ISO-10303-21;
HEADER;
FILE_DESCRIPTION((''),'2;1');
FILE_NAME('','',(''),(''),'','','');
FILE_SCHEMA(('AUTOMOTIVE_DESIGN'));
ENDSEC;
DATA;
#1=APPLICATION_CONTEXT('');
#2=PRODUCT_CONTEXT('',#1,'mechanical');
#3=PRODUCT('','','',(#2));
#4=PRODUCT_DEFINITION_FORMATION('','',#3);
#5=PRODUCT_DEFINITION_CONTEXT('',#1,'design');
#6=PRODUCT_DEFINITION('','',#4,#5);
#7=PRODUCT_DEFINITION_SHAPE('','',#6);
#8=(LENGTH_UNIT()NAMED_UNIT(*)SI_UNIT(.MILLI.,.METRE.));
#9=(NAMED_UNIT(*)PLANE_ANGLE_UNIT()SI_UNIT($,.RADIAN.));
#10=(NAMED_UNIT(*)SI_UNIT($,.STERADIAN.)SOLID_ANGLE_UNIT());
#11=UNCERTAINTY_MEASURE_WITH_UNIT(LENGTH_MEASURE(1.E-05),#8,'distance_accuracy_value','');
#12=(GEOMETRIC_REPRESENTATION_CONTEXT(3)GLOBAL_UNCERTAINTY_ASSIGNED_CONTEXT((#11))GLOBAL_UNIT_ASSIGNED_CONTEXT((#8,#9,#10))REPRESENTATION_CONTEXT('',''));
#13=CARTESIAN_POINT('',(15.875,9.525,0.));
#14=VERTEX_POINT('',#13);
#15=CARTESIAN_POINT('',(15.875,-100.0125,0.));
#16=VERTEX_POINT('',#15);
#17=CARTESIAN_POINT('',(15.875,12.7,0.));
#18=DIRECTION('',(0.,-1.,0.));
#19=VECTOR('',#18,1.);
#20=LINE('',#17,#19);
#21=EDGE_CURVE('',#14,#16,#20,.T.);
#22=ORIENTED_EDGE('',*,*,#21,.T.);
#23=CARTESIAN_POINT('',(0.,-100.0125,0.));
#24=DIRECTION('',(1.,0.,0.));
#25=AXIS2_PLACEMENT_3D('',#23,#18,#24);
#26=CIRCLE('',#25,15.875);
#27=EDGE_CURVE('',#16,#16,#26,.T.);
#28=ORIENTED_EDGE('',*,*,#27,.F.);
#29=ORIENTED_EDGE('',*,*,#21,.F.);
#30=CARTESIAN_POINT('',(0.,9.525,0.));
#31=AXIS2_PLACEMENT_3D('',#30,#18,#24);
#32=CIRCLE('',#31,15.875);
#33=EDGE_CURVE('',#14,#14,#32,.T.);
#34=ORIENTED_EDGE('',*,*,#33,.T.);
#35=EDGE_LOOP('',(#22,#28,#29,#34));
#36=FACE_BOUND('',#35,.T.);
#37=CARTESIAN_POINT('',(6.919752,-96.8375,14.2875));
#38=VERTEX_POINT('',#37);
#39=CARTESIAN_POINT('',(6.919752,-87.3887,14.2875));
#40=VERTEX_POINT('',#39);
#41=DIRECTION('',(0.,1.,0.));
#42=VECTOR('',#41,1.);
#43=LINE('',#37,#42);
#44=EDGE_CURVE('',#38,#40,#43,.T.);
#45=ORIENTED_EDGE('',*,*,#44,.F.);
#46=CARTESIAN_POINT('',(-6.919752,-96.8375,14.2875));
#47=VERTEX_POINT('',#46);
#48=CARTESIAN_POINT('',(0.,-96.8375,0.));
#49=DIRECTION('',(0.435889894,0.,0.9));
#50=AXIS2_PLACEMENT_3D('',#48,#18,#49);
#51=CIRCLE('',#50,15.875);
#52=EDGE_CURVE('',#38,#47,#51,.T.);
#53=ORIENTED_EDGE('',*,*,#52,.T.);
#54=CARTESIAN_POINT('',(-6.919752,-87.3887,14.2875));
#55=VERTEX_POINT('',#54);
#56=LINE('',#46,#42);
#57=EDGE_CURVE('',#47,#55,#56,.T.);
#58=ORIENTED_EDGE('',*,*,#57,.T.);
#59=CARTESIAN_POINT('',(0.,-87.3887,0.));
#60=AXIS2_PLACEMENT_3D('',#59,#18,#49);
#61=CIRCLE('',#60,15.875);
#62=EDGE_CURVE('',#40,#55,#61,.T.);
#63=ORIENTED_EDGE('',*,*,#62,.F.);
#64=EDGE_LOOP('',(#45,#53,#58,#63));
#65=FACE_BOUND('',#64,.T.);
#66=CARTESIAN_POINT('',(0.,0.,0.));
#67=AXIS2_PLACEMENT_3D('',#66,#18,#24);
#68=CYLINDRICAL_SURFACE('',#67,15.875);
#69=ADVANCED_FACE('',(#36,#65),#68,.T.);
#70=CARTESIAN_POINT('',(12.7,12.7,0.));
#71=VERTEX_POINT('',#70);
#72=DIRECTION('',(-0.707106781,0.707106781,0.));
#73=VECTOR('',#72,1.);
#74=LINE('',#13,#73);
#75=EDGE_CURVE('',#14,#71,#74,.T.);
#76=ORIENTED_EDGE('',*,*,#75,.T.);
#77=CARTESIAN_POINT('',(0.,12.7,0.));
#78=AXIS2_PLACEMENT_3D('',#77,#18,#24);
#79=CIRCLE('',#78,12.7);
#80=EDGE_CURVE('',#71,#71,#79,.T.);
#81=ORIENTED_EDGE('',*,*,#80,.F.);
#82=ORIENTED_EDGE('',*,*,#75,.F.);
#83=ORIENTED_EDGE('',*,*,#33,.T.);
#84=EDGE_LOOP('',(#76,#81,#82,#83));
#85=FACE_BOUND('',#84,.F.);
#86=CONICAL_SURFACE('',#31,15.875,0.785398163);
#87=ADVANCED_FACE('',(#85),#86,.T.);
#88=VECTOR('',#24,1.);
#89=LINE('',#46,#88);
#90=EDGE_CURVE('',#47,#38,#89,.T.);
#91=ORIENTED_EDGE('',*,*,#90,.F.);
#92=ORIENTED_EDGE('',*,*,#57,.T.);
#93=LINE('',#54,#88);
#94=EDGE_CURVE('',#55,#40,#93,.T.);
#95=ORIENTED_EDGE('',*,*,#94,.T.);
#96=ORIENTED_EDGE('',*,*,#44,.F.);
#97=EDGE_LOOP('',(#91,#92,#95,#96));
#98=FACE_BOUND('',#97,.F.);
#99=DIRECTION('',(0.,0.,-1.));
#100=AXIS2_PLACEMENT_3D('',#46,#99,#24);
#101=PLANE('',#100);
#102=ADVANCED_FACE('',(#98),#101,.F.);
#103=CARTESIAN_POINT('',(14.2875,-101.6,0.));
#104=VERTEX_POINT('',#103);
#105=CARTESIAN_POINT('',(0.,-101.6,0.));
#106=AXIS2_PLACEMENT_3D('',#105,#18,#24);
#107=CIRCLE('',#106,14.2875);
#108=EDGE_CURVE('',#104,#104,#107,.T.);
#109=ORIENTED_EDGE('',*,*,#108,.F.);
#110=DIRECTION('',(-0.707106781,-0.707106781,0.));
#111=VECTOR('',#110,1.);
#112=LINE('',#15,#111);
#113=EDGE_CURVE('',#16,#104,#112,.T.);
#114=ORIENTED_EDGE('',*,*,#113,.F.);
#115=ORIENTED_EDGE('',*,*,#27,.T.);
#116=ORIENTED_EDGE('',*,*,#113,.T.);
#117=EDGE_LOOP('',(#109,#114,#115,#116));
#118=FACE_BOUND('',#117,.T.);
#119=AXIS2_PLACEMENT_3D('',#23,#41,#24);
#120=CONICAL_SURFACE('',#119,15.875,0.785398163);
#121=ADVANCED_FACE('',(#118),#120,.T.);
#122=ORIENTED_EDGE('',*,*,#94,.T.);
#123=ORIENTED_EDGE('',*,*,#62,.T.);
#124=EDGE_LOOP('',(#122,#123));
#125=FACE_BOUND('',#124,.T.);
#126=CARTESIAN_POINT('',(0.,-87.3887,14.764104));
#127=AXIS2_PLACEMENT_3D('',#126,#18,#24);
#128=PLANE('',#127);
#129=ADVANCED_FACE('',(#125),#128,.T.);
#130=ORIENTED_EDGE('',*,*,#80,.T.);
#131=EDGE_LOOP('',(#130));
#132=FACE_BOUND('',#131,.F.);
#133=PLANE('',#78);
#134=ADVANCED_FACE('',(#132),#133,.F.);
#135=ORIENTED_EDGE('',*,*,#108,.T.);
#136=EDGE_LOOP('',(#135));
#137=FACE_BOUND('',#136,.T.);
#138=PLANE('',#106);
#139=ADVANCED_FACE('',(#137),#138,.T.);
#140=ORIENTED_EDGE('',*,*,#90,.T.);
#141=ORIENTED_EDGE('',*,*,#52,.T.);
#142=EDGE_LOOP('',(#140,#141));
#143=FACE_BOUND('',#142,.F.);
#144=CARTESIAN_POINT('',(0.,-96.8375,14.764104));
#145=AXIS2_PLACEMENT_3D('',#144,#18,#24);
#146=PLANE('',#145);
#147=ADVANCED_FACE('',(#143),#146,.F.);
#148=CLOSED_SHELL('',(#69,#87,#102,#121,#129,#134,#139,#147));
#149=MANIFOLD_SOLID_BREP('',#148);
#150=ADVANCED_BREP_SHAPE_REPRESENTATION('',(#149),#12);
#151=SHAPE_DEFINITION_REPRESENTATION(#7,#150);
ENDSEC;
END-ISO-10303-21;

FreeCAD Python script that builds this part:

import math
import FreeCAD as App
import Part
import Sketcher

V = App.Vector
Q = App.Units.Quantity


def edges_at(feature, points):
    """Names of the edges that pass closest to the given points."""
    edges = feature.Shape.Edges
    near = lambda p: min(range(len(edges)), key=lambda i: edges[i].distToShape(Part.Vertex(*p))[0])
    return sorted({f"Edge{near(p) + 1}" for p in points})

doc = App.newDocument("Part")
params = doc.addObject("Spreadsheet::Sheet", "Params")
for row, (alias, value) in enumerate([
    ("sketch1_diameter", "1.25 in"),
    ("pad1_length", "4 in"),
    ("pad1_length2", "0.5 in"),
    ("chamfer_size", "0.0625 in"),
    ("chamfer2_size", "0.125 in"),
    ("sketch2_radius", "0.625 in"),
    ("pocket1_length", "0.372 in"),
], start=1):
    params.set(f"A{row}", alias)
    params.set(f"B{row}", "=" + value)
    params.setAlias(f"B{row}", alias)

body = doc.addObject("PartDesign::Body", "Body")

sketch1 = body.newObject("Sketcher::SketchObject", "Sketch")
sketch1.AttachmentSupport = (doc.getObject("XZ_Plane"), [""])
sketch1.MapMode = "FlatFace"
sketch1.addGeometry(Part.Circle(V(0, 0, 0), V(0, 0, 1), 15.875), False)
sketch1.addConstraint([
    Sketcher.Constraint("Coincident", 0, 3, -1, 1),
    Sketcher.Constraint("Diameter", 0, Q("1.25 in")),
])
sketch1.setExpression("Constraints[1]", "Params.sketch1_diameter")
pad1 = body.newObject("PartDesign::Pad", "Pad")
pad1.Profile = sketch1
pad1.Type = "TwoLengths"
pad1.setExpression("Length", "Params.pad1_length")
pad1.setExpression("Length2", "Params.pad1_length2")
doc.recompute()

chamfer = body.newObject("PartDesign::Chamfer", "Chamfer")
chamfer.Base = (pad1, edges_at(pad1, [(-15.875, -101.6, 0)]))
chamfer.setExpression("Size", "Params.chamfer_size")
doc.recompute()

chamfer2 = body.newObject("PartDesign::Chamfer", "Chamfer001")
chamfer2.Base = (chamfer, edges_at(chamfer, [(-15.875, 12.7, 0)]))
chamfer2.setExpression("Size", "Params.chamfer2_size")

sketch2 = body.newObject("Sketcher::SketchObject", "Sketch001")
sketch2.AttachmentSupport = (doc.getObject("XZ_Plane"), [""])
sketch2.MapMode = "FlatFace"
sketch2.AttachmentOffset = App.Placement(V(0, 0, 3.8125 * 25.4), App.Rotation())
sketch2.addGeometry([
    Part.ArcOfCircle(Part.Circle(V(0, 0, 0), V(0, 0, 1), 15.875), math.radians(64.158067), math.radians(115.841933)),
    Part.LineSegment(V(-6.919752, 14.2875, 0), V(6.919752, 14.2875, 0)),
], False)
sketch2.addConstraint([
    Sketcher.Constraint("Coincident", 0, 1, 1, 2),
    Sketcher.Constraint("Coincident", 1, 1, 0, 2),
    Sketcher.Constraint("Horizontal", 1),
    Sketcher.Constraint("Coincident", 0, 3, -1, 1),
    Sketcher.Constraint("Radius", 0, Q("0.625 in")),
    Sketcher.Constraint("DistanceY", -1, 1, 0, 1, Q("0.5625 in")),
])
sketch2.setExpression("Constraints[4]", "Params.sketch2_radius")
pocket1 = body.newObject("PartDesign::Pocket", "Pocket")
pocket1.Profile = sketch2
pocket1.setExpression("Length", "Params.pocket1_length")

doc.recompute()
